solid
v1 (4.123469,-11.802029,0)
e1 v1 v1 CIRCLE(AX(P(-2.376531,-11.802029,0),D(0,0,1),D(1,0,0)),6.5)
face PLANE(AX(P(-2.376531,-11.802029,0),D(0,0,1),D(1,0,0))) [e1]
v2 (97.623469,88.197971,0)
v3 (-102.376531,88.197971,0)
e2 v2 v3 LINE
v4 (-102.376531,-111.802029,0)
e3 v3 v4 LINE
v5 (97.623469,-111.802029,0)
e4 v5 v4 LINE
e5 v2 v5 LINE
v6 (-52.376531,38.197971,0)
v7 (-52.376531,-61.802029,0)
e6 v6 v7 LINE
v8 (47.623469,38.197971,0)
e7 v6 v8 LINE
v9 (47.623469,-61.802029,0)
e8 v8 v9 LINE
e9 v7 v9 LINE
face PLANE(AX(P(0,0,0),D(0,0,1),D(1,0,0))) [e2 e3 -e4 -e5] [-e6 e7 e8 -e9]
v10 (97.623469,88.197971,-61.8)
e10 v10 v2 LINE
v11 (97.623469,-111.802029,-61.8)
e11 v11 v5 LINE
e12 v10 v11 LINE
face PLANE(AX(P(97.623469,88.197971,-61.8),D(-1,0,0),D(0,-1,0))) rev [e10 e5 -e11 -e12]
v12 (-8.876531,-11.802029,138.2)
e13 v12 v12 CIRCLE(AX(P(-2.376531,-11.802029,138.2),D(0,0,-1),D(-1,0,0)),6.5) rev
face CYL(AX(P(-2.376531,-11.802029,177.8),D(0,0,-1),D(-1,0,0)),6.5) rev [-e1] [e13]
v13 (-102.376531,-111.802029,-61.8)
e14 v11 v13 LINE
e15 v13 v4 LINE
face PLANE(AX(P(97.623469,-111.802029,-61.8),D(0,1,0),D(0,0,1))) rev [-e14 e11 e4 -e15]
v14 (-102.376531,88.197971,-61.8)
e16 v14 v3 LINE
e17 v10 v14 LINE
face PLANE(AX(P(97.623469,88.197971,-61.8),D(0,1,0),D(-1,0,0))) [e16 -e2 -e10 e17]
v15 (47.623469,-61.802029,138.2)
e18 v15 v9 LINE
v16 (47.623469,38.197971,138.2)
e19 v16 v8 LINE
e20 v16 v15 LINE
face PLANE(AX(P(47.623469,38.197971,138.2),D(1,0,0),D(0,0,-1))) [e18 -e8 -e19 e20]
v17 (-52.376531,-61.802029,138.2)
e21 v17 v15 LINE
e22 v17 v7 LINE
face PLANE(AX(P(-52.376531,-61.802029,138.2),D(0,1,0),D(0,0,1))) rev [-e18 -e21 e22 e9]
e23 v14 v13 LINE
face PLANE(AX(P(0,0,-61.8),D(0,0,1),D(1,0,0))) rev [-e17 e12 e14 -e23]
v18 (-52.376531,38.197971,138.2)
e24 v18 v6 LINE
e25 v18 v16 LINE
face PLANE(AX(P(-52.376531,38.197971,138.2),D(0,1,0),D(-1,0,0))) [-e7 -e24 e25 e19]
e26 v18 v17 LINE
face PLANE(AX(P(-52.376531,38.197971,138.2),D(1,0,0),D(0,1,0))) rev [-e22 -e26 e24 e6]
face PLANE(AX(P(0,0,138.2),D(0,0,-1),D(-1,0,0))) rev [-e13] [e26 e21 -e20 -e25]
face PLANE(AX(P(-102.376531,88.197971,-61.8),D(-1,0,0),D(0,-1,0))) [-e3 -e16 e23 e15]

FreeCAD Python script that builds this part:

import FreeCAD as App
import Part
import Sketcher

V = App.Vector

doc = App.newDocument("Part")
params = doc.addObject("Spreadsheet::Sheet", "Params")
for row, (alias, value) in enumerate([
    ("sketch1_width", "100 mm"),
    ("pad1_length", "138.2 mm"),
    ("sketch2_width", "200 mm"),
    ("pad2_length", "61.8 mm"),
    ("sketch3_diameter", "13 mm"),
    ("pocket1_length", "177.8 mm"),
], start=1):
    params.set(f"A{row}", alias)
    params.set(f"B{row}", "=" + value)
    params.setAlias(f"B{row}", alias)

body = doc.addObject("PartDesign::Body", "Body")

# Sketch on XY plane
sketch1 = doc.addObject("Sketcher::SketchObject", "Sketch")
body.addObject(sketch1)
sketch1.AttachmentSupport = (doc.XY_Plane, [""])
sketch1.MapMode = "FlatFace"
sketch1.addGeometry([
    Part.LineSegment(V(-52, 38, 0), V(-52, -62, 0)),
    Part.LineSegment(V(-52, -62, 0), V(48, -62, 0)),
    Part.LineSegment(V(48, -62, 0), V(48, 38, 0)),
    Part.LineSegment(V(48, 38, 0), V(-52, 38, 0)),
], False)
sketch1.addConstraint([
    Sketcher.Constraint("Coincident", 0, 2, 1, 1),
    Sketcher.Constraint("Coincident", 1, 2, 2, 1),
    Sketcher.Constraint("Coincident", 2, 2, 3, 1),
    Sketcher.Constraint("Coincident", 3, 2, 0, 1),
    Sketcher.Constraint("Vertical", 0),
    Sketcher.Constraint("Horizontal", 1),
    Sketcher.Constraint("Vertical", 2),
    Sketcher.Constraint("Horizontal", 3),
    Sketcher.Constraint("Equal", 3, 0),
    Sketcher.Constraint("DistanceX", 1, 1, 1, 2, 100.0),
    Sketcher.Constraint("DistanceX", 0, 2, -1, 1, 52.376531),
    Sketcher.Constraint("DistanceY", 0, 2, -1, 1, 61.802029),
])
sketch1.setExpression("Constraints[9]", "Params.sketch1_width")
pad1 = doc.addObject("PartDesign::Pad", "Pad")
body.addObject(pad1)
pad1.Profile = sketch1
pad1.setExpression("Length", "Params.pad1_length")

# Sketch on XY plane
sketch2 = doc.addObject("Sketcher::SketchObject", "Sketch001")
body.addObject(sketch2)
sketch2.AttachmentSupport = (doc.XY_Plane, [""])
sketch2.MapMode = "FlatFace"
sketch2.addGeometry([
    Part.LineSegment(V(-102, 88, 0), V(-102, -112, 0)),
    Part.LineSegment(V(-102, -112, 0), V(98, -112, 0)),
    Part.LineSegment(V(98, -112, 0), V(98, 88, 0)),
    Part.LineSegment(V(98, 88, 0), V(-102, 88, 0)),
], False)
sketch2.addConstraint([
    Sketcher.Constraint("Coincident", 0, 2, 1, 1),
    Sketcher.Constraint("Coincident", 1, 2, 2, 1),
    Sketcher.Constraint("Coincident", 2, 2, 3, 1),
    Sketcher.Constraint("Coincident", 3, 2, 0, 1),
    Sketcher.Constraint("Vertical", 0),
    Sketcher.Constraint("Horizontal", 1),
    Sketcher.Constraint("Vertical", 2),
    Sketcher.Constraint("Horizontal", 3),
    Sketcher.Constraint("Equal", 3, 0),
    Sketcher.Constraint("DistanceX", 1, 1, 1, 2, 200.0),
    Sketcher.Constraint("DistanceX", 0, 2, -1, 1, 102.376531),
    Sketcher.Constraint("DistanceY", 0, 2, -1, 1, 111.802029),
])
sketch2.setExpression("Constraints[9]", "Params.sketch2_width")
pad2 = doc.addObject("PartDesign::Pad", "Pad001")
body.addObject(pad2)
pad2.Profile = sketch2
pad2.setExpression("Length", "Params.pad2_length")
pad2.Reversed = True

# Sketch on XY plane
sketch3 = doc.addObject("Sketcher::SketchObject", "Sketch002")
body.addObject(sketch3)
sketch3.AttachmentSupport = (doc.XY_Plane, [""])
sketch3.MapMode = "FlatFace"
sketch3.addGeometry(Part.Circle(V(-2, -12, 0), V(0, 0, 1), 6), False)
sketch3.addConstraint([
    Sketcher.Constraint("Diameter", 0, 13.0),
    Sketcher.Constraint("DistanceX", 0, 3, -1, 1, 2.376531),
    Sketcher.Constraint("DistanceY", 0, 3, -1, 1, 11.802029),
])
sketch3.setExpression("Constraints[0]", "Params.sketch3_diameter")
pocket1 = doc.addObject("PartDesign::Pocket", "Pocket")
body.addObject(pocket1)
pocket1.Profile = sketch3
pocket1.setExpression("Length", "Params.pocket1_length")
pocket1.Reversed = True

doc.recompute()
